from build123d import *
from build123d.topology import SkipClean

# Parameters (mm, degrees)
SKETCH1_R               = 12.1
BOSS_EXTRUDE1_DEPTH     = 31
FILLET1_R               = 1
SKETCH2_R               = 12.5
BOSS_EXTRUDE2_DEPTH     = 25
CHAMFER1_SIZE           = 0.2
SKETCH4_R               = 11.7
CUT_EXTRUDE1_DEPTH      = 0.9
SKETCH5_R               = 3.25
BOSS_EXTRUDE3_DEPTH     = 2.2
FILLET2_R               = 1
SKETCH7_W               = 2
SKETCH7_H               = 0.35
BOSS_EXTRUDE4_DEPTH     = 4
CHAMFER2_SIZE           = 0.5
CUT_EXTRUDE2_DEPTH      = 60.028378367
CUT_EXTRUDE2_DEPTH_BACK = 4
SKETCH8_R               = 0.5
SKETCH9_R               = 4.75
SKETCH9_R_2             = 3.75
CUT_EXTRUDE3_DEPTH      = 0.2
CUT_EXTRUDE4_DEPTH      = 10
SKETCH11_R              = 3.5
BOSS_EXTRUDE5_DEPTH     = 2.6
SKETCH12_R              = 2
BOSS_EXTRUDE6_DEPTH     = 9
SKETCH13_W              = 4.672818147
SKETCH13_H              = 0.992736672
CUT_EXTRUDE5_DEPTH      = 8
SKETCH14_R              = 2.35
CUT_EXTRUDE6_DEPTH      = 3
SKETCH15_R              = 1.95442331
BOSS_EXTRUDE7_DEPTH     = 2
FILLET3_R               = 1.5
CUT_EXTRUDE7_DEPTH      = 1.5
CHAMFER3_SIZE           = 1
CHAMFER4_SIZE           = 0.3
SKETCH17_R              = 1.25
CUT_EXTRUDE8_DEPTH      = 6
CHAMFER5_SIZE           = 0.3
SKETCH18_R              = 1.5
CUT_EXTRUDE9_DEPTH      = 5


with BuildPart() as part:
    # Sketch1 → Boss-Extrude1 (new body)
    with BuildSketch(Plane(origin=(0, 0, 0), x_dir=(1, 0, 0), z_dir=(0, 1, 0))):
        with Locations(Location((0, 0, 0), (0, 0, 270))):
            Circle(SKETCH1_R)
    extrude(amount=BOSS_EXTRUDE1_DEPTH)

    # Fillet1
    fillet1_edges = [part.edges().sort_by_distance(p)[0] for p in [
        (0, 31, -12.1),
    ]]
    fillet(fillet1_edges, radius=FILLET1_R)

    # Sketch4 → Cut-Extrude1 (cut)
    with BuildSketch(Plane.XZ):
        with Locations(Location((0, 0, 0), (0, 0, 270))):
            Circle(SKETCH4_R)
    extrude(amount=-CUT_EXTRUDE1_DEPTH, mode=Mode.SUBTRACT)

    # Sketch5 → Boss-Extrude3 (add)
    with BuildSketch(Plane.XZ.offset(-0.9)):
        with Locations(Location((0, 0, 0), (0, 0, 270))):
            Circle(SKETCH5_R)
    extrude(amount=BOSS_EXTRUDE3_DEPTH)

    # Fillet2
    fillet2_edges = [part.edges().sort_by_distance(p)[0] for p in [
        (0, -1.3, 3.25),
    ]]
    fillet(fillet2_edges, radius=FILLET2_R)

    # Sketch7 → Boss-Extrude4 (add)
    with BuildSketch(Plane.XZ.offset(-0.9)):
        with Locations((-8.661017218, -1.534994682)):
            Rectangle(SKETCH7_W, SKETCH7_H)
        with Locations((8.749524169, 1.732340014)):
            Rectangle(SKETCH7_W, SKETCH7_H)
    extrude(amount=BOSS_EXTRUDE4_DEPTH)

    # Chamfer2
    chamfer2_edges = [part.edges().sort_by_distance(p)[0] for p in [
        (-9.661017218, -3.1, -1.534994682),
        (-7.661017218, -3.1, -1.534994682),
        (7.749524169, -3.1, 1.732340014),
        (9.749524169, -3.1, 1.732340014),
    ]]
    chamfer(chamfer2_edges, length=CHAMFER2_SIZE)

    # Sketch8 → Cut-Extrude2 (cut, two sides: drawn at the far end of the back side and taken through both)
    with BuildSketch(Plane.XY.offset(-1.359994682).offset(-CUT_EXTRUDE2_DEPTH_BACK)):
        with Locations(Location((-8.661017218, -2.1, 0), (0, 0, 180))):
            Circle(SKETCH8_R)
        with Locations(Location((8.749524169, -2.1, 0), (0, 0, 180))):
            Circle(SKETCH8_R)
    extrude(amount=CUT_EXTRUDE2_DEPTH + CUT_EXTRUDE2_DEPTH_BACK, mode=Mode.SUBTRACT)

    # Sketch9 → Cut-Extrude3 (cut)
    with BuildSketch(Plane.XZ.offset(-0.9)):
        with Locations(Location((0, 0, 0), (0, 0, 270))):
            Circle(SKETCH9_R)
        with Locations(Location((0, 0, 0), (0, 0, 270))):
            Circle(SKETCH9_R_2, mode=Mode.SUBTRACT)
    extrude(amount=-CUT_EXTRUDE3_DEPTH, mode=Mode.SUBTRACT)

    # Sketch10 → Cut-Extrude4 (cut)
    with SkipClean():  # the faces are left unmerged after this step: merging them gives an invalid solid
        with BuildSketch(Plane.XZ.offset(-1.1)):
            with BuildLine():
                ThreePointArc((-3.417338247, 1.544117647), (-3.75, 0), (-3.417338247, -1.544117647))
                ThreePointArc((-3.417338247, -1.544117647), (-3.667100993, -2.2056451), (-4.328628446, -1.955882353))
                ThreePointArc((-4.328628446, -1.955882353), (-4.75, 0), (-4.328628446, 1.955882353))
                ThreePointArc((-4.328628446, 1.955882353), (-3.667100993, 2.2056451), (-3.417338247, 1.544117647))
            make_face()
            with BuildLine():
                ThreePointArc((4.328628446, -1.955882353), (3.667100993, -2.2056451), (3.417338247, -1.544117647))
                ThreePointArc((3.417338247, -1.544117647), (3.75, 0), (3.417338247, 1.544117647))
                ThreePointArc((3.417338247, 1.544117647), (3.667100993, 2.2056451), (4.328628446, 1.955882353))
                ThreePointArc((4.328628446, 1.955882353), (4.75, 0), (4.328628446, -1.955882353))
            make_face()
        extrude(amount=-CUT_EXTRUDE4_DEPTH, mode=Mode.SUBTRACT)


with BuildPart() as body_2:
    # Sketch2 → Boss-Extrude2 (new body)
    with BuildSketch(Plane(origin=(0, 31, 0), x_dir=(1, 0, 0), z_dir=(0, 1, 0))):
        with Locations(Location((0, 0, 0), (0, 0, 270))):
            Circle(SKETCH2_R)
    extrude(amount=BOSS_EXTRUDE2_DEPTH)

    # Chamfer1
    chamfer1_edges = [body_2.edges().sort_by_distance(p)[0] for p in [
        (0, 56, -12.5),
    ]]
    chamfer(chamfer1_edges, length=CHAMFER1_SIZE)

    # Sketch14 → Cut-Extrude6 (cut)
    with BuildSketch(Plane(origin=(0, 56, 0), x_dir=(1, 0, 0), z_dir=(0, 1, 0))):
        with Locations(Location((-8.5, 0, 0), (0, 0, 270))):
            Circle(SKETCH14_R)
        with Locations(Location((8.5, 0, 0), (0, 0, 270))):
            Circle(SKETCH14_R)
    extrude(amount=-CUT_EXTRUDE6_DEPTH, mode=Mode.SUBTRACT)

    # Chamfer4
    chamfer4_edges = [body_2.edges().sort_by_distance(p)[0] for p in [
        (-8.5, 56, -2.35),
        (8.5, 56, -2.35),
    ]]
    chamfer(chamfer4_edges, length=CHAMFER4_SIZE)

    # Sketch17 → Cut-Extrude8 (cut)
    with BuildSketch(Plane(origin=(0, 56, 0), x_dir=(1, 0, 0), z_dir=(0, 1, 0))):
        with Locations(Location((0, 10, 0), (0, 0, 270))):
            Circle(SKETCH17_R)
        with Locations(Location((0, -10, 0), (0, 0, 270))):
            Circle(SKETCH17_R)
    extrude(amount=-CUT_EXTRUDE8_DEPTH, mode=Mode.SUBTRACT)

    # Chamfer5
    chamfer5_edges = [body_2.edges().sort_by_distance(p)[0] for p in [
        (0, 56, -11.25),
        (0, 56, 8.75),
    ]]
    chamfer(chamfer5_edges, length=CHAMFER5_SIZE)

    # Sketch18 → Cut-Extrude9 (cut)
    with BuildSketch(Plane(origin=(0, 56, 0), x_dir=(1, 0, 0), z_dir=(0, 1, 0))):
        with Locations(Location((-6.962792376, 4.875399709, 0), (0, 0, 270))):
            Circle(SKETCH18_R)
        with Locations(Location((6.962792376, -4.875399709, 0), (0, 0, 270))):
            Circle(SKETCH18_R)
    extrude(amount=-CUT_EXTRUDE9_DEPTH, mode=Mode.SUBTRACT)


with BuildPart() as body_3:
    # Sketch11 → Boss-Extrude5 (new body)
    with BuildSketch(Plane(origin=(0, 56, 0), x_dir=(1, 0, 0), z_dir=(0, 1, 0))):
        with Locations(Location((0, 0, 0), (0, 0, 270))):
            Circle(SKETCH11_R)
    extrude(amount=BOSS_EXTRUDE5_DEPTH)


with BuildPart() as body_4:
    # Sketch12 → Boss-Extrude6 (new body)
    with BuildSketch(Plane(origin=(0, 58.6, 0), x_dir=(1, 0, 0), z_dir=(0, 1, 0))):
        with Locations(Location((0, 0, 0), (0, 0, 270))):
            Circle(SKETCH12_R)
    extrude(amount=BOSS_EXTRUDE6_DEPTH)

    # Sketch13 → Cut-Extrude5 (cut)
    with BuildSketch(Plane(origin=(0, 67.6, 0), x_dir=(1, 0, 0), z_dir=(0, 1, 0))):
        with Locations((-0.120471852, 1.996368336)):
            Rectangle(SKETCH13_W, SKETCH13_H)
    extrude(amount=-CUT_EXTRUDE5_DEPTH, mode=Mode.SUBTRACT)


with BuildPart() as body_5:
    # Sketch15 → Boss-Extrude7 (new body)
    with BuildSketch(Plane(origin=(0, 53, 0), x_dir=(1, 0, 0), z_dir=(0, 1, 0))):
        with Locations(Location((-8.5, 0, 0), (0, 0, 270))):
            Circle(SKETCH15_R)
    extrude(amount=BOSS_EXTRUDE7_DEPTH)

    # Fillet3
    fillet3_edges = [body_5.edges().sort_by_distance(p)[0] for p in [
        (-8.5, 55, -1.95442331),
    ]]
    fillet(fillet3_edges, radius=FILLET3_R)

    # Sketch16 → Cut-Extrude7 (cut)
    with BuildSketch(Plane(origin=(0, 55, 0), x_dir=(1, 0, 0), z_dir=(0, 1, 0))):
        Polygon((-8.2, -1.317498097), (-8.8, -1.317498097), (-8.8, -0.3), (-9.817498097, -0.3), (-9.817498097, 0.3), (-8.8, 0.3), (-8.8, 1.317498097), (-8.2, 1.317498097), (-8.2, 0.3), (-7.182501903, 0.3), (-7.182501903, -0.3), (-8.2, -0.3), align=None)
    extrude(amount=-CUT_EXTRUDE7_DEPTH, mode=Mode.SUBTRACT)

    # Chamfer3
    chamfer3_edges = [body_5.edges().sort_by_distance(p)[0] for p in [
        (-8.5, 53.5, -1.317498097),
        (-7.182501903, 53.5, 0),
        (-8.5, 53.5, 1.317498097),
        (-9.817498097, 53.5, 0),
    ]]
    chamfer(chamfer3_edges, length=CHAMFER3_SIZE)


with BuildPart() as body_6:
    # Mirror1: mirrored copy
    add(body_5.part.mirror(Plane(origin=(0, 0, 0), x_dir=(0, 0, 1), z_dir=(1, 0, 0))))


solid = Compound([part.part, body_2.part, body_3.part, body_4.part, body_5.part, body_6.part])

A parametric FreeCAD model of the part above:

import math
import FreeCAD as App
import Part
import Sketcher
from FreeCAD import Vector


def edges_at(feature, points):
    """Names of the edges that pass closest to the given points."""
    edges = feature.Shape.Edges
    near = lambda p: min(range(len(edges)), key=lambda i: edges[i].distToShape(Part.Vertex(*p))[0])
    return sorted({f"Edge{near(p) + 1}" for p in points})

doc = App.newDocument("Part")
body = doc.addObject("PartDesign::Body", "Body")

# Sketch on XZ plane
sketch1 = doc.addObject("Sketcher::SketchObject", "Sketch")
body.addObject(sketch1)
sketch1.AttachmentSupport = (doc.XZ_Plane, [""])
sketch1.MapMode = "FlatFace"
sketch1.addGeometry(Part.Circle(Vector(0, 0, 0), Vector(0, 0, 1), 12), False)
sketch1.addConstraint([
    Sketcher.Constraint("Coincident", 0, 3, -1, 1),
    Sketcher.Constraint("Diameter", 0, 24.2),
])
pad1 = doc.addObject("PartDesign::Pad", "Pad")
body.addObject(pad1)
pad1.Profile = sketch1
pad1.Length = 31
pad1.Reversed = True
doc.recompute()

fillet = doc.addObject("PartDesign::Fillet", "Fillet")
body.addObject(fillet)
fillet.Base = (pad1, edges_at(pad1, [(0, 31, -12.1)]))
fillet.Radius = 1

# Sketch on XZ plane
sketch2 = doc.addObject("Sketcher::SketchObject", "Sketch001")
body.addObject(sketch2)
sketch2.AttachmentSupport = (doc.XZ_Plane, [""])
sketch2.MapMode = "FlatFace"
sketch2.addGeometry(Part.Circle(Vector(0, 0, 0), Vector(0, 0, 1), 12), False)
sketch2.addConstraint([
    Sketcher.Constraint("Coincident", 0, 3, -1, 1),
    Sketcher.Constraint("Diameter", 0, 23.4),
])
pocket1 = doc.addObject("PartDesign::Pocket", "Pocket")
body.addObject(pocket1)
pocket1.Profile = sketch2
pocket1.Length = 0.9

# Sketch on XZ plane
sketch3 = doc.addObject("Sketcher::SketchObject", "Sketch002")
body.addObject(sketch3)
sketch3.AttachmentSupport = (doc.XZ_Plane, [""])
sketch3.MapMode = "FlatFace"
sketch3.AttachmentOffset = App.Placement(Vector(0, 0, -0.9), App.Rotation())
sketch3.addGeometry(Part.Circle(Vector(0, 0, 0), Vector(0, 0, 1), 3.2), False)
sketch3.addConstraint([
    Sketcher.Constraint("Coincident", 0, 3, -1, 1),
    Sketcher.Constraint("Diameter", 0, 6.5),
])
pad2 = doc.addObject("PartDesign::Pad", "Pad001")
body.addObject(pad2)
pad2.Profile = sketch3
pad2.Length = 2.2
doc.recompute()

fillet2 = doc.addObject("PartDesign::Fillet", "Fillet001")
body.addObject(fillet2)
fillet2.Base = (pad2, edges_at(pad2, [(0, -1.3, 3.25)]))
fillet2.Radius = 1

# Sketch on XZ plane
sketch4 = doc.addObject("Sketcher::SketchObject", "Sketch003")
body.addObject(sketch4)
sketch4.AttachmentSupport = (doc.XZ_Plane, [""])
sketch4.MapMode = "FlatFace"
sketch4.AttachmentOffset = App.Placement(Vector(0, 0, -0.9), App.Rotation())
sketch4.addGeometry([
    Part.LineSegment(Vector(-9.66, -1.36, 0), Vector(-9.66, -1.71, 0)),  # 0
    Part.LineSegment(Vector(-9.66, -1.71, 0), Vector(-7.66, -1.71, 0)),  # 1
    Part.LineSegment(Vector(-7.66, -1.71, 0), Vector(-7.66, -1.36, 0)),  # 2
    Part.LineSegment(Vector(-7.66, -1.36, 0), Vector(-9.66, -1.36, 0)),  # 3
    Part.LineSegment(Vector(7.75, 1.91, 0), Vector(7.75, 1.56, 0)),  # 4
    Part.LineSegment(Vector(7.75, 1.56, 0), Vector(9.75, 1.56, 0)),  # 5
    Part.LineSegment(Vector(9.75, 1.56, 0), Vector(9.75, 1.91, 0)),  # 6
    Part.LineSegment(Vector(9.75, 1.91, 0), Vector(7.75, 1.91, 0)),  # 7
], False)
sketch4.addConstraint([
    Sketcher.Constraint("Coincident", 0, 2, 1, 1),
    Sketcher.Constraint("Coincident", 1, 2, 2, 1),
    Sketcher.Constraint("Coincident", 2, 2, 3, 1),
    Sketcher.Constraint("Coincident", 3, 2, 0, 1),
    Sketcher.Constraint("Coincident", 4, 2, 5, 1),
    Sketcher.Constraint("Coincident", 5, 2, 6, 1),
    Sketcher.Constraint("Coincident", 6, 2, 7, 1),
    Sketcher.Constraint("Coincident", 7, 2, 4, 1),
    Sketcher.Constraint("Vertical", 0),
    Sketcher.Constraint("Horizontal", 1),
    Sketcher.Constraint("Vertical", 2),
    Sketcher.Constraint("Horizontal", 3),
    Sketcher.Constraint("Vertical", 4),
    Sketcher.Constraint("Horizontal", 5),
    Sketcher.Constraint("Vertical", 6),
    Sketcher.Constraint("Horizontal", 7),
    Sketcher.Constraint("Equal", 3, 5),
    Sketcher.Constraint("Equal", 2, 4),
    Sketcher.Constraint("DistanceX", 1, 1, 1, 2, 2.0),
    Sketcher.Constraint("DistanceY", 0, 2, 0, 1, 0.35),
    Sketcher.Constraint("DistanceY", -1, 1, 4, 2, 1.55734),
    Sketcher.Constraint("DistanceX", 2, 2, 4, 2, 15.410541),
    Sketcher.Constraint("DistanceX", 0, 2, -1, 1, 9.661017),
    Sketcher.Constraint("DistanceY", 0, 2, -1, 1, 1.709995),
])
pad3 = doc.addObject("PartDesign::Pad", "Pad002")
body.addObject(pad3)
pad3.Profile = sketch4
pad3.Length = 4
doc.recompute()

chamfer = doc.addObject("PartDesign::Chamfer", "Chamfer")
body.addObject(chamfer)
chamfer.Base = (pad3, edges_at(pad3, [
    (-9.661, -3.1, -1.535),
    (-7.661, -3.1, -1.535),
    (7.75, -3.1, 1.732),
    (9.75, -3.1, 1.732),
]))
chamfer.Size = 0.5

# Sketch on XY plane
sketch5 = doc.addObject("Sketcher::SketchObject", "Sketch004")
body.addObject(sketch5)
sketch5.AttachmentSupport = (doc.XY_Plane, [""])
sketch5.MapMode = "FlatFace"
sketch5.AttachmentOffset = App.Placement(Vector(0, 0, -1.359995), App.Rotation())
sketch5.addGeometry([
    Part.Circle(Vector(-8.7, -2.1, 0), Vector(0, 0, 1), 0.5),
    Part.Circle(Vector(8.7, -2.1, 0), Vector(0, 0, 1), 0.5),
], False)
sketch5.addConstraint([
    Sketcher.Constraint("Equal", 0, 1),
    Sketcher.Constraint("Horizontal", 0, 3, 1, 3),
    Sketcher.Constraint("Diameter", 0, 1.0),
    Sketcher.Constraint("DistanceY", 0, 3, -1, 1, 2.1),
    Sketcher.Constraint("DistanceX", 0, 3, 1, 3, 17.410541),
    Sketcher.Constraint("DistanceX", 0, 3, -1, 1, 8.661017),
])
pocket2 = doc.addObject("PartDesign::Pocket", "Pocket001")
body.addObject(pocket2)
pocket2.Profile = sketch5
pocket2.Type = "ThroughAll"
pocket2.Midplane = True

# Sketch on XZ plane
sketch6 = doc.addObject("Sketcher::SketchObject", "Sketch005")
body.addObject(sketch6)
sketch6.AttachmentSupport = (doc.XZ_Plane, [""])
sketch6.MapMode = "FlatFace"
sketch6.AttachmentOffset = App.Placement(Vector(0, 0, -0.9), App.Rotation())
sketch6.addGeometry([
    Part.Circle(Vector(0, 0, 0), Vector(0, 0, 1), 4.8),
    Part.Circle(Vector(0, 0, 0), Vector(0, 0, 1), 3.8),
], False)
sketch6.addConstraint([
    Sketcher.Constraint("Coincident", 0, 3, -1, 1),
    Sketcher.Constraint("Coincident", 1, 3, -1, 1),
    Sketcher.Constraint("Diameter", 0, 9.5),
    Sketcher.Constraint("Diameter", 1, 7.5),
])
pocket3 = doc.addObject("PartDesign::Pocket", "Pocket002")
body.addObject(pocket3)
pocket3.Profile = sketch6
pocket3.Length = 0.2

# Sketch on XZ plane
sketch7 = doc.addObject("Sketcher::SketchObject", "Sketch006")
body.addObject(sketch7)
sketch7.AttachmentSupport = (doc.XZ_Plane, [""])
sketch7.MapMode = "FlatFace"
sketch7.AttachmentOffset = App.Placement(Vector(0, 0, -1.1), App.Rotation())
sketch7.addGeometry([
    Part.ArcOfCircle(Part.Circle(Vector(0, 0, 0), Vector(0, 0, 1), 3.8), math.radians(156), math.radians(204)),  # 0
    Part.ArcOfCircle(Part.Circle(Vector(-3.9, 1.8, 0), Vector(0, 0, 1), 0.5), math.radians(-24), math.radians(156)),  # 1
    Part.ArcOfCircle(Part.Circle(Vector(0, 0, 0), Vector(0, 0, 1), 4.8), math.radians(156), math.radians(204)),  # 2
    Part.ArcOfCircle(Part.Circle(Vector(-3.9, -1.8, 0), Vector(0, 0, 1), 0.5), math.radians(-156), math.radians(24)),  # 3
    Part.ArcOfCircle(Part.Circle(Vector(3.9, -1.8, 0), Vector(0, 0, 1), 0.5), math.radians(156), math.radians(336)),  # 4
    Part.ArcOfCircle(Part.Circle(Vector(0, 0, 0), Vector(0, 0, 1), 4.8), math.radians(-24), math.radians(24)),  # 5
    Part.ArcOfCircle(Part.Circle(Vector(3.9, 1.8, 0), Vector(0, 0, 1), 0.5), math.radians(24), math.radians(204)),  # 6
    Part.ArcOfCircle(Part.Circle(Vector(0, 0, 0), Vector(0, 0, 1), 3.8), math.radians(-24), math.radians(24)),  # 7
], False)
sketch7.addConstraint([
    Sketcher.Constraint("Tangent", 0, 1, 1, 1),
    Sketcher.Constraint("Tangent", 1, 2, 2, 1),
    Sketcher.Constraint("Tangent", 2, 2, 3, 1),
    Sketcher.Constraint("Tangent", 3, 2, 0, 2),
    Sketcher.Constraint("Tangent", 4, 2, 5, 1),
    Sketcher.Constraint("Tangent", 5, 2, 6, 1),
    Sketcher.Constraint("Tangent", 6, 2, 7, 2),
    Sketcher.Constraint("Tangent", 7, 1, 4, 1),
    Sketcher.Constraint("Coincident", 0, 3, -1, 1),
    Sketcher.Constraint("Coincident", 2, 3, -1, 1),
    Sketcher.Constraint("Coincident", 5, 3, -1, 1),
    Sketcher.Constraint("Coincident", 7, 3, -1, 1),
    Sketcher.Constraint("Equal", 3, 4),
    Sketcher.Constraint("Equal", 2, 5),
    Sketcher.Constraint("Horizontal", 3, 3, 4, 3),
    Sketcher.Constraint("Horizontal", 1, 3, 6, 3),
    Sketcher.Constraint("Vertical", 1, 3, 3, 3),
    Sketcher.Constraint("Radius", 1, 0.5),
    Sketcher.Constraint("Radius", 0, 3.75),
    Sketcher.Constraint("DistanceY", 3, 3, 1, 3, 3.5),
])
pocket4 = doc.addObject("PartDesign::Pocket", "Pocket003")
body.addObject(pocket4)
pocket4.Profile = sketch7
pocket4.Length = 10
body2 = doc.addObject("PartDesign::Body", "Body001")

# Sketch on XZ plane
sketch8 = doc.addObject("Sketcher::SketchObject", "Sketch007")
body2.addObject(sketch8)
sketch8.AttachmentSupport = (doc.getObject("XZ_Plane001"), [""])
sketch8.MapMode = "FlatFace"
sketch8.AttachmentOffset = App.Placement(Vector(0, 0, -31), App.Rotation())
sketch8.addGeometry(Part.Circle(Vector(0, 0, 0), Vector(0, 0, 1), 12), False)
sketch8.addConstraint([
    Sketcher.Constraint("Coincident", 0, 3, -1, 1),
    Sketcher.Constraint("Diameter", 0, 25.0),
])
pad4 = doc.addObject("PartDesign::Pad", "Pad003")
body2.addObject(pad4)
pad4.Profile = sketch8
pad4.Length = 25
pad4.Reversed = True
doc.recompute()

chamfer2 = doc.addObject("PartDesign::Chamfer", "Chamfer001")
body2.addObject(chamfer2)
chamfer2.Base = (pad4, edges_at(pad4, [(0, 56, -12.5)]))
chamfer2.Size = 0.2

# Sketch on XZ plane
sketch9 = doc.addObject("Sketcher::SketchObject", "Sketch008")
body2.addObject(sketch9)
sketch9.AttachmentSupport = (doc.getObject("XZ_Plane001"), [""])
sketch9.MapMode = "FlatFace"
sketch9.AttachmentOffset = App.Placement(Vector(0, 0, -56), App.Rotation())
sketch9.addGeometry([
    Part.Circle(Vector(-8.5, 0, 0), Vector(0, 0, 1), 2.4),
    Part.Circle(Vector(8.5, 0, 0), Vector(0, 0, 1), 2.4),
], False)
sketch9.addConstraint([
    Sketcher.Constraint("Equal", 0, 1),
    Sketcher.Constraint("Symmetric", 0, 3, 1, 3, -1, 1),
    Sketcher.Constraint("PointOnObject", 0, 3, -1),
    Sketcher.Constraint("Diameter", 0, 4.7),
    Sketcher.Constraint("DistanceX", 0, 3, 1, 3, 17.0),
])
pocket5 = doc.addObject("PartDesign::Pocket", "Pocket004")
body2.addObject(pocket5)
pocket5.Profile = sketch9
pocket5.Length = 3
pocket5.Reversed = True
doc.recompute()

chamfer3 = doc.addObject("PartDesign::Chamfer", "Chamfer002")
body2.addObject(chamfer3)
chamfer3.Base = (pocket5, edges_at(pocket5, [(-8.5, 56, -2.35), (8.5, 56, -2.35)]))
chamfer3.Size = 0.3

# Sketch on XZ plane
sketch10 = doc.addObject("Sketcher::SketchObject", "Sketch009")
body2.addObject(sketch10)
sketch10.AttachmentSupport = (doc.getObject("XZ_Plane001"), [""])
sketch10.MapMode = "FlatFace"
sketch10.AttachmentOffset = App.Placement(Vector(0, 0, -56), App.Rotation())
sketch10.addGeometry([
    Part.Circle(Vector(0, -10, 0), Vector(0, 0, 1), 1.2),
    Part.Circle(Vector(0, 10, 0), Vector(0, 0, 1), 1.2),
], False)
sketch10.addConstraint([
    Sketcher.Constraint("Equal", 0, 1),
    Sketcher.Constraint("Symmetric", 0, 3, 1, 3, -1, 1),
    Sketcher.Constraint("PointOnObject", 0, 3, -2),
    Sketcher.Constraint("Diameter", 0, 2.5),
    Sketcher.Constraint("DistanceY", 0, 3, -1, 1, 10.0),
])
pocket6 = doc.addObject("PartDesign::Pocket", "Pocket005")
body2.addObject(pocket6)
pocket6.Profile = sketch10
pocket6.Length = 6
pocket6.Reversed = True
doc.recompute()

chamfer4 = doc.addObject("PartDesign::Chamfer", "Chamfer003")
body2.addObject(chamfer4)
chamfer4.Base = (pocket6, edges_at(pocket6, [(0, 56, -11.25), (0, 56, 8.75)]))
chamfer4.Size = 0.3

# Sketch on XZ plane
sketch11 = doc.addObject("Sketcher::SketchObject", "Sketch010")
body2.addObject(sketch11)
sketch11.AttachmentSupport = (doc.getObject("XZ_Plane001"), [""])
sketch11.MapMode = "FlatFace"
sketch11.AttachmentOffset = App.Placement(Vector(0, 0, -56), App.Rotation())
sketch11.addGeometry([
    Part.Circle(Vector(-7, -4.9, 0), Vector(0, 0, 1), 1.5),
    Part.Circle(Vector(7, 4.9, 0), Vector(0, 0, 1), 1.5),
], False)
sketch11.addConstraint([
    Sketcher.Constraint("Equal", 0, 1),
    Sketcher.Constraint("Symmetric", 0, 3, 1, 3, -1, 1),
    Sketcher.Constraint("Diameter", 0, 3.0),
    Sketcher.Constraint("DistanceY", 0, 3, -1, 1, 4.8754),
    Sketcher.Constraint("DistanceX", 0, 3, -1, 1, 6.962792),
])
pocket7 = doc.addObject("PartDesign::Pocket", "Pocket006")
body2.addObject(pocket7)
pocket7.Profile = sketch11
pocket7.Length = 5
pocket7.Reversed = True
body3 = doc.addObject("PartDesign::Body", "Body002")

# Sketch on XZ plane
sketch12 = doc.addObject("Sketcher::SketchObject", "Sketch011")
body3.addObject(sketch12)
sketch12.AttachmentSupport = (doc.getObject("XZ_Plane002"), [""])
sketch12.MapMode = "FlatFace"
sketch12.AttachmentOffset = App.Placement(Vector(0, 0, -56), App.Rotation())
sketch12.addGeometry(Part.Circle(Vector(0, 0, 0), Vector(0, 0, 1), 3.5), False)
sketch12.addConstraint([
    Sketcher.Constraint("Coincident", 0, 3, -1, 1),
    Sketcher.Constraint("Diameter", 0, 7.0),
])
pad5 = doc.addObject("PartDesign::Pad", "Pad004")
body3.addObject(pad5)
pad5.Profile = sketch12
pad5.Length = 2.6
pad5.Reversed = True
body4 = doc.addObject("PartDesign::Body", "Body003")

# Sketch on XZ plane
sketch13 = doc.addObject("Sketcher::SketchObject", "Sketch012")
body4.addObject(sketch13)
sketch13.AttachmentSupport = (doc.getObject("XZ_Plane003"), [""])
sketch13.MapMode = "FlatFace"
sketch13.AttachmentOffset = App.Placement(Vector(0, 0, -58.6), App.Rotation())
sketch13.addGeometry(Part.Circle(Vector(0, 0, 0), Vector(0, 0, 1), 2), False)
sketch13.addConstraint([
    Sketcher.Constraint("Coincident", 0, 3, -1, 1),
    Sketcher.Constraint("Diameter", 0, 4.0),
])
pad6 = doc.addObject("PartDesign::Pad", "Pad005")
body4.addObject(pad6)
pad6.Profile = sketch13
pad6.Length = 9
pad6.Reversed = True

# Sketch on XZ plane
sketch14 = doc.addObject("Sketcher::SketchObject", "Sketch013")
body4.addObject(sketch14)
sketch14.AttachmentSupport = (doc.getObject("XZ_Plane003"), [""])
sketch14.MapMode = "FlatFace"
sketch14.AttachmentOffset = App.Placement(Vector(0, 0, -67.6), App.Rotation())
sketch14.addGeometry([
    Part.LineSegment(Vector(-2.5, -2.5, 0), Vector(-2.5, -1.5, 0)),
    Part.LineSegment(Vector(-2.5, -1.5, 0), Vector(2.2, -1.5, 0)),
    Part.LineSegment(Vector(2.2, -1.5, 0), Vector(2.2, -2.5, 0)),
    Part.LineSegment(Vector(2.2, -2.5, 0), Vector(-2.5, -2.5, 0)),
], False)
sketch14.addConstraint([
    Sketcher.Constraint("Coincident", 0, 2, 1, 1),
    Sketcher.Constraint("Coincident", 1, 2, 2, 1),
    Sketcher.Constraint("Coincident", 2, 2, 3, 1),
    Sketcher.Constraint("Coincident", 3, 2, 0, 1),
    Sketcher.Constraint("Vertical", 0),
    Sketcher.Constraint("Horizontal", 1),
    Sketcher.Constraint("Vertical", 2),
    Sketcher.Constraint("Horizontal", 3),
    Sketcher.Constraint("DistanceY", 0, 2, -1, 1, 1.5),
    Sketcher.Constraint("DistanceX", 1, 1, 1, 2, 4.672818),
    Sketcher.Constraint("DistanceY", 0, 1, 0, 2, 0.992737),
    Sketcher.Constraint("DistanceX", 0, 2, -1, 1, 2.456881),
])
pocket8 = doc.addObject("PartDesign::Pocket", "Pocket007")
body4.addObject(pocket8)
pocket8.Profile = sketch14
pocket8.Length = 8
pocket8.Reversed = True
body5 = doc.addObject("PartDesign::Body", "Body004")

# Sketch on XZ plane
sketch15 = doc.addObject("Sketcher::SketchObject", "Sketch014")
body5.addObject(sketch15)
sketch15.AttachmentSupport = (doc.getObject("XZ_Plane004"), [""])
sketch15.MapMode = "FlatFace"
sketch15.AttachmentOffset = App.Placement(Vector(0, 0, -53), App.Rotation())
sketch15.addGeometry(Part.Circle(Vector(-8.5, 0, 0), Vector(0, 0, 1), 2), False)
sketch15.addConstraint([
    Sketcher.Constraint("PointOnObject", 0, 3, -1),
    Sketcher.Constraint("DistanceX", 0, 3, -1, 1, 8.5),
    Sketcher.Constraint("Diameter", 0, 3.908847),
])
pad7 = doc.addObject("PartDesign::Pad", "Pad006")
body5.addObject(pad7)
pad7.Profile = sketch15
pad7.Length = 2
pad7.Reversed = True
doc.recompute()

fillet3 = doc.addObject("PartDesign::Fillet", "Fillet002")
body5.addObject(fillet3)
fillet3.Base = (pad7, edges_at(pad7, [(-8.5, 55, -1.954)]))
fillet3.Radius = 1.5

# Sketch on XZ plane
sketch16 = doc.addObject("Sketcher::SketchObject", "Sketch015")
body5.addObject(sketch16)
sketch16.AttachmentSupport = (doc.getObject("XZ_Plane004"), [""])
sketch16.MapMode = "FlatFace"
sketch16.AttachmentOffset = App.Placement(Vector(0, 0, -55), App.Rotation())
sketch16.addGeometry([
    Part.LineSegment(Vector(-8.8, 1.3, 0), Vector(-8.2, 1.3, 0)),  # 0
    Part.LineSegment(Vector(-8.2, 1.3, 0), Vector(-8.2, 0.3, 0)),  # 1
    Part.LineSegment(Vector(-8.2, 0.3, 0), Vector(-7.2, 0.3, 0)),  # 2
    Part.LineSegment(Vector(-7.2, 0.3, 0), Vector(-7.2, -0.3, 0)),  # 3
    Part.LineSegment(Vector(-7.2, -0.3, 0), Vector(-8.2, -0.3, 0)),  # 4
    Part.LineSegment(Vector(-8.2, -0.3, 0), Vector(-8.2, -1.3, 0)),  # 5
    Part.LineSegment(Vector(-8.2, -1.3, 0), Vector(-8.8, -1.3, 0)),  # 6
    Part.LineSegment(Vector(-8.8, -1.3, 0), Vector(-8.8, -0.3, 0)),  # 7
    Part.LineSegment(Vector(-8.8, -0.3, 0), Vector(-9.8, -0.3, 0)),  # 8
    Part.LineSegment(Vector(-9.8, -0.3, 0), Vector(-9.8, 0.3, 0)),  # 9
    Part.LineSegment(Vector(-9.8, 0.3, 0), Vector(-8.8, 0.3, 0)),  # 10
    Part.LineSegment(Vector(-8.8, 0.3, 0), Vector(-8.8, 1.3, 0)),  # 11
], False)
sketch16.addConstraint([
    Sketcher.Constraint("Coincident", 0, 2, 1, 1),
    Sketcher.Constraint("Coincident", 1, 2, 2, 1),
    Sketcher.Constraint("Coincident", 2, 2, 3, 1),
    Sketcher.Constraint("Coincident", 3, 2, 4, 1),
    Sketcher.Constraint("Coincident", 4, 2, 5, 1),
    Sketcher.Constraint("Coincident", 5, 2, 6, 1),
    Sketcher.Constraint("Coincident", 6, 2, 7, 1),
    Sketcher.Constraint("Coincident", 7, 2, 8, 1),
    Sketcher.Constraint("Coincident", 8, 2, 9, 1),
    Sketcher.Constraint("Coincident", 9, 2, 10, 1),
    Sketcher.Constraint("Coincident", 10, 2, 11, 1),
    Sketcher.Constraint("Coincident", 11, 2, 0, 1),
    Sketcher.Constraint("Horizontal", 0),
    Sketcher.Constraint("Vertical", 1),
    Sketcher.Constraint("Horizontal", 2),
    Sketcher.Constraint("Vertical", 3),
    Sketcher.Constraint("Horizontal", 4),
    Sketcher.Constraint("Vertical", 5),
    Sketcher.Constraint("Horizontal", 6),
    Sketcher.Constraint("Vertical", 7),
    Sketcher.Constraint("Horizontal", 8),
    Sketcher.Constraint("Vertical", 9),
    Sketcher.Constraint("Horizontal", 10),
    Sketcher.Constraint("Vertical", 11),
    Sketcher.Constraint("Symmetric", 1, 2, 4, 2, -1),
    Sketcher.Constraint("Symmetric", 7, 2, 10, 2, -1),
    Sketcher.Constraint("Horizontal", 4, 2, 7, 2),
    Sketcher.Constraint("Equal", 4, 8),
    Sketcher.Constraint("Equal", 10, 1),
    Sketcher.Constraint("Equal", 6, 3),
    Sketcher.Constraint("Equal", 1, 5),
    Sketcher.Constraint("DistanceX", 0, 1, 0, 2, 0.6),
    Sketcher.Constraint("DistanceX", 0, 2, -1, 1, 8.2),
    Sketcher.Constraint("DistanceX", 2, 1, 2, 2, 1.017498),
])
pocket9 = doc.addObject("PartDesign::Pocket", "Pocket008")
body5.addObject(pocket9)
pocket9.Profile = sketch16
pocket9.Length = 1.5
pocket9.Reversed = True
doc.recompute()

chamfer5 = doc.addObject("PartDesign::Chamfer", "Chamfer004")
body5.addObject(chamfer5)
chamfer5.Base = (pocket9, edges_at(pocket9, [
    (-8.5, 53.5, -1.317),
    (-7.183, 53.5, 0),
    (-8.5, 53.5, 1.317),
    (-9.817, 53.5, 0),
]))
chamfer5.Size = 1
body6 = doc.addObject("PartDesign::Body", "Body005")
doc.recompute()

mirroring = doc.addObject("Part::Mirroring", "Mirroring")
mirroring.Source = body5
mirroring.Base = Vector(0, 0, 0)
mirroring.Normal = Vector(1, 0, 0)
body6.BaseFeature = mirroring
doc.recompute()
mirroring.Visibility = False

doc.recompute()
